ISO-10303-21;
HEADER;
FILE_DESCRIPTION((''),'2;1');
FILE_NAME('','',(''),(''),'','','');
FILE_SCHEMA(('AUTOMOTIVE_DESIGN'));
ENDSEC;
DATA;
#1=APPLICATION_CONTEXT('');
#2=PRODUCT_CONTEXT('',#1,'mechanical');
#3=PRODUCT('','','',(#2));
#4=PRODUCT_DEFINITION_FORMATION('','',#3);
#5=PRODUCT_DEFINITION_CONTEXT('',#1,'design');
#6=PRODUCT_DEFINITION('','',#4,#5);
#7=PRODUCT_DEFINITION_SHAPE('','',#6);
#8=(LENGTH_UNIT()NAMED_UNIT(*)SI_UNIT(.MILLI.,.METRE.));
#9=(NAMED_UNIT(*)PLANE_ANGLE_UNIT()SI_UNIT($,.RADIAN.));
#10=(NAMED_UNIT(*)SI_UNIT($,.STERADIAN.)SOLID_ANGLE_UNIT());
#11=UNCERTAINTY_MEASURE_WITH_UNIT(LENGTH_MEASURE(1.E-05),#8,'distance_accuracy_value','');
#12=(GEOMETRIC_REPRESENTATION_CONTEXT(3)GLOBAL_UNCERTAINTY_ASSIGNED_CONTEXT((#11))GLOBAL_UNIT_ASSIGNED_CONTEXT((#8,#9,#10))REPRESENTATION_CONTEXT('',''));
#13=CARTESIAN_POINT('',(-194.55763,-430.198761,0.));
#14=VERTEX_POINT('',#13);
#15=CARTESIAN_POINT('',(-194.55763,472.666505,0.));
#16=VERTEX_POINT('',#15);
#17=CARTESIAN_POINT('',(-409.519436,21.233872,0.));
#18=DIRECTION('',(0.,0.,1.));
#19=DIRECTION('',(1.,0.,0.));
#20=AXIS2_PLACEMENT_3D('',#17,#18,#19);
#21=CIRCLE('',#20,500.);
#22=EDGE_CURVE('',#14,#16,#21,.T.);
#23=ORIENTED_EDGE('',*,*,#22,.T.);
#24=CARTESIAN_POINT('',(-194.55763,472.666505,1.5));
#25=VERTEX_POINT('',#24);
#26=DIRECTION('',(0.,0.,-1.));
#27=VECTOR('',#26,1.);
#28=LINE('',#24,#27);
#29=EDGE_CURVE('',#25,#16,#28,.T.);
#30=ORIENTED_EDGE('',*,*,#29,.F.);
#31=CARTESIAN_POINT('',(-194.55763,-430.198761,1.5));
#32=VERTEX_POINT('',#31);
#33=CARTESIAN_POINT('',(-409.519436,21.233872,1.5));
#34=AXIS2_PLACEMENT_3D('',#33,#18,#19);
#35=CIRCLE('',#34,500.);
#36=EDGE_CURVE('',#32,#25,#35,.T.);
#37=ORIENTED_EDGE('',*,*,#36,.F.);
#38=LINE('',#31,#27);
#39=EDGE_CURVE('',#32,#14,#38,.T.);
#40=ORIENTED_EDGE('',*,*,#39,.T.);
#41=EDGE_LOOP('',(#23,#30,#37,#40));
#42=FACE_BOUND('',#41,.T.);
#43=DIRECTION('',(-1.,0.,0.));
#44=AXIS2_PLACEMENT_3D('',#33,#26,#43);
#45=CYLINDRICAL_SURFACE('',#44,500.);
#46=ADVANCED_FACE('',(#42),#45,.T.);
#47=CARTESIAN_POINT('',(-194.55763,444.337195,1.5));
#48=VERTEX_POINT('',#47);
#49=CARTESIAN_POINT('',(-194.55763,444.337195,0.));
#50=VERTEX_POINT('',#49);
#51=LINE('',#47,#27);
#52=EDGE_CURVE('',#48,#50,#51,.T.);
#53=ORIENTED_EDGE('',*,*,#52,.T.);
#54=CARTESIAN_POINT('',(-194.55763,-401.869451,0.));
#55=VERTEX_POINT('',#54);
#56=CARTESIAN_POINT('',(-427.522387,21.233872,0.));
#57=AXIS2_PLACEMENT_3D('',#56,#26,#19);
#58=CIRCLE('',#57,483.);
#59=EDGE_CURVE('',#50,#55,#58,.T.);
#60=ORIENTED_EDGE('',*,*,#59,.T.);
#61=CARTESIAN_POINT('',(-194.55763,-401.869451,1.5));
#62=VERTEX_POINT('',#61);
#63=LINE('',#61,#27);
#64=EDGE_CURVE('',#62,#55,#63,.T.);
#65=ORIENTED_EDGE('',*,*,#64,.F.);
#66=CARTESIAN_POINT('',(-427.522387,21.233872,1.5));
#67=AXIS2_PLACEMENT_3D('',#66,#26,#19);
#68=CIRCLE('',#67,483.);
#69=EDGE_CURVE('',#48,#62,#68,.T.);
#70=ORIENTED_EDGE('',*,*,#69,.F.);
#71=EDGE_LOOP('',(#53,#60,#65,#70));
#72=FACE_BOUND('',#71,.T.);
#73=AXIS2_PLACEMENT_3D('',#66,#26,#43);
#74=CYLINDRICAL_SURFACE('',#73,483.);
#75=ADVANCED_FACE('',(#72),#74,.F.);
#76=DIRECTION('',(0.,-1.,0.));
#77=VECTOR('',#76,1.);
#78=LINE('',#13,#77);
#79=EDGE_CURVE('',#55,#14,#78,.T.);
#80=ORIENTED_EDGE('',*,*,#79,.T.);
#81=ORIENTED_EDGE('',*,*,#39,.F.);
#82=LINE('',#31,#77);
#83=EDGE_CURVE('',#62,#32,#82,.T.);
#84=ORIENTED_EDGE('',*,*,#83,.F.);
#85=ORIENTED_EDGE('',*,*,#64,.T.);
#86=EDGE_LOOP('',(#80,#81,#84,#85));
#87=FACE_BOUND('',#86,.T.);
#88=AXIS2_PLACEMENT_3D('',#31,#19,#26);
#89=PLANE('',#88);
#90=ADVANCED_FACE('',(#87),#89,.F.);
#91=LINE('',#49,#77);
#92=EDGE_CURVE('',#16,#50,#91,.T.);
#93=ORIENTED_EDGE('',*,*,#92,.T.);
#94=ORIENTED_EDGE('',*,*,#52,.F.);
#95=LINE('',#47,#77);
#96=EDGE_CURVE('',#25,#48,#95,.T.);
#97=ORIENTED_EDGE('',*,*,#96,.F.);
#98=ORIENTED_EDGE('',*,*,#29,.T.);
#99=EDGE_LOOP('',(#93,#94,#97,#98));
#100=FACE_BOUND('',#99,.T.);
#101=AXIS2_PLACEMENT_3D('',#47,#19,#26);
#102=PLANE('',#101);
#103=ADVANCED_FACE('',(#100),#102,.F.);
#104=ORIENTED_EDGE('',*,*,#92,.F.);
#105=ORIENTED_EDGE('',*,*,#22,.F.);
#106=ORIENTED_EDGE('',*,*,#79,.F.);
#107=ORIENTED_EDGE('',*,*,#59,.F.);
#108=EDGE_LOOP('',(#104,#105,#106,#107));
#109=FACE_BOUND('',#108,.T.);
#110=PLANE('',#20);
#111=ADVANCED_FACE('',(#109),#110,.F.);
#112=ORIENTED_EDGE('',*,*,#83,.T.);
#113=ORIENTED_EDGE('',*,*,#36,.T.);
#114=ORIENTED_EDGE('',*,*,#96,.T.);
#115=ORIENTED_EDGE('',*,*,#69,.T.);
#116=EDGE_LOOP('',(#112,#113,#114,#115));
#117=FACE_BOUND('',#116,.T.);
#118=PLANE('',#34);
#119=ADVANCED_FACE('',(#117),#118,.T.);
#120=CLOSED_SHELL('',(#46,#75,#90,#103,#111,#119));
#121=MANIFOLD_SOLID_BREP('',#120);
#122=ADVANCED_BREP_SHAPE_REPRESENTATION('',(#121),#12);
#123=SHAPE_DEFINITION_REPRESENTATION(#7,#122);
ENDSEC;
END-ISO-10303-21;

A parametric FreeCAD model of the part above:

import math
import FreeCAD as App
import Part
import Sketcher

V = App.Vector
Q = App.Units.Quantity

doc = App.newDocument("Part")
body = doc.addObject("PartDesign::Body", "Body")

# Sketch on XY plane
sketch1 = body.newObject("Sketcher::SketchObject", "Sketch")
sketch1.AttachmentSupport = (doc.getObject("XY_Plane"), [""])
sketch1.MapMode = "FlatFace"
sketch1.addGeometry(Part.LineSegment(V(-195, -402, 0), V(-195, -430, 0)), False)
sketch1.addGeometry(Part.ArcOfCircle(Part.Circle(V(-410, 21, 0), V(0, 0, 1), 500), math.radians(-65), math.radians(65)), False)
sketch1.addGeometry(Part.LineSegment(V(-195, 473, 0), V(-195, 444, 0)), False)
sketch1.addGeometry(Part.ArcOfCircle(Part.Circle(V(-428, 21, 0), V(0, 0, 1), 483), math.radians(-61), math.radians(61)), False)
sketch1.addConstraint(Sketcher.Constraint("Coincident", 0, 2, 1, 1))
sketch1.addConstraint(Sketcher.Constraint("Coincident", 1, 2, 2, 1))
sketch1.addConstraint(Sketcher.Constraint("Coincident", 2, 2, 3, 2))
sketch1.addConstraint(Sketcher.Constraint("Coincident", 3, 1, 0, 1))
sketch1.addConstraint(Sketcher.Constraint("Vertical", 0))
sketch1.addConstraint(Sketcher.Constraint("Vertical", 2))
sketch1.addConstraint(Sketcher.Constraint("Horizontal", 1, 3, 3, 3))
sketch1.addConstraint(Sketcher.Constraint("Vertical", 0, 2, 1, 2))
sketch1.addConstraint(Sketcher.Constraint("Radius", 1, Q("500 mm")))
sketch1.addConstraint(Sketcher.Constraint("Radius", 3, Q("483 mm")))
sketch1.addConstraint(Sketcher.Constraint("DistanceY", 0, 2, 0, 1, Q("28.32931 mm")))
sketch1.addConstraint(Sketcher.Constraint("DistanceY", -1, 1, 1, 3, Q("21.233872 mm")))
sketch1.addConstraint(Sketcher.Constraint("DistanceX", 0, 2, -1, 1, Q("194.55763 mm")))
sketch1.addConstraint(Sketcher.Constraint("DistanceY", 0, 2, -1, 1, Q("430.198761 mm")))
pad1 = body.newObject("PartDesign::Pad", "Pad")
pad1.Profile = sketch1
pad1.Length = 1.5

doc.recompute()
